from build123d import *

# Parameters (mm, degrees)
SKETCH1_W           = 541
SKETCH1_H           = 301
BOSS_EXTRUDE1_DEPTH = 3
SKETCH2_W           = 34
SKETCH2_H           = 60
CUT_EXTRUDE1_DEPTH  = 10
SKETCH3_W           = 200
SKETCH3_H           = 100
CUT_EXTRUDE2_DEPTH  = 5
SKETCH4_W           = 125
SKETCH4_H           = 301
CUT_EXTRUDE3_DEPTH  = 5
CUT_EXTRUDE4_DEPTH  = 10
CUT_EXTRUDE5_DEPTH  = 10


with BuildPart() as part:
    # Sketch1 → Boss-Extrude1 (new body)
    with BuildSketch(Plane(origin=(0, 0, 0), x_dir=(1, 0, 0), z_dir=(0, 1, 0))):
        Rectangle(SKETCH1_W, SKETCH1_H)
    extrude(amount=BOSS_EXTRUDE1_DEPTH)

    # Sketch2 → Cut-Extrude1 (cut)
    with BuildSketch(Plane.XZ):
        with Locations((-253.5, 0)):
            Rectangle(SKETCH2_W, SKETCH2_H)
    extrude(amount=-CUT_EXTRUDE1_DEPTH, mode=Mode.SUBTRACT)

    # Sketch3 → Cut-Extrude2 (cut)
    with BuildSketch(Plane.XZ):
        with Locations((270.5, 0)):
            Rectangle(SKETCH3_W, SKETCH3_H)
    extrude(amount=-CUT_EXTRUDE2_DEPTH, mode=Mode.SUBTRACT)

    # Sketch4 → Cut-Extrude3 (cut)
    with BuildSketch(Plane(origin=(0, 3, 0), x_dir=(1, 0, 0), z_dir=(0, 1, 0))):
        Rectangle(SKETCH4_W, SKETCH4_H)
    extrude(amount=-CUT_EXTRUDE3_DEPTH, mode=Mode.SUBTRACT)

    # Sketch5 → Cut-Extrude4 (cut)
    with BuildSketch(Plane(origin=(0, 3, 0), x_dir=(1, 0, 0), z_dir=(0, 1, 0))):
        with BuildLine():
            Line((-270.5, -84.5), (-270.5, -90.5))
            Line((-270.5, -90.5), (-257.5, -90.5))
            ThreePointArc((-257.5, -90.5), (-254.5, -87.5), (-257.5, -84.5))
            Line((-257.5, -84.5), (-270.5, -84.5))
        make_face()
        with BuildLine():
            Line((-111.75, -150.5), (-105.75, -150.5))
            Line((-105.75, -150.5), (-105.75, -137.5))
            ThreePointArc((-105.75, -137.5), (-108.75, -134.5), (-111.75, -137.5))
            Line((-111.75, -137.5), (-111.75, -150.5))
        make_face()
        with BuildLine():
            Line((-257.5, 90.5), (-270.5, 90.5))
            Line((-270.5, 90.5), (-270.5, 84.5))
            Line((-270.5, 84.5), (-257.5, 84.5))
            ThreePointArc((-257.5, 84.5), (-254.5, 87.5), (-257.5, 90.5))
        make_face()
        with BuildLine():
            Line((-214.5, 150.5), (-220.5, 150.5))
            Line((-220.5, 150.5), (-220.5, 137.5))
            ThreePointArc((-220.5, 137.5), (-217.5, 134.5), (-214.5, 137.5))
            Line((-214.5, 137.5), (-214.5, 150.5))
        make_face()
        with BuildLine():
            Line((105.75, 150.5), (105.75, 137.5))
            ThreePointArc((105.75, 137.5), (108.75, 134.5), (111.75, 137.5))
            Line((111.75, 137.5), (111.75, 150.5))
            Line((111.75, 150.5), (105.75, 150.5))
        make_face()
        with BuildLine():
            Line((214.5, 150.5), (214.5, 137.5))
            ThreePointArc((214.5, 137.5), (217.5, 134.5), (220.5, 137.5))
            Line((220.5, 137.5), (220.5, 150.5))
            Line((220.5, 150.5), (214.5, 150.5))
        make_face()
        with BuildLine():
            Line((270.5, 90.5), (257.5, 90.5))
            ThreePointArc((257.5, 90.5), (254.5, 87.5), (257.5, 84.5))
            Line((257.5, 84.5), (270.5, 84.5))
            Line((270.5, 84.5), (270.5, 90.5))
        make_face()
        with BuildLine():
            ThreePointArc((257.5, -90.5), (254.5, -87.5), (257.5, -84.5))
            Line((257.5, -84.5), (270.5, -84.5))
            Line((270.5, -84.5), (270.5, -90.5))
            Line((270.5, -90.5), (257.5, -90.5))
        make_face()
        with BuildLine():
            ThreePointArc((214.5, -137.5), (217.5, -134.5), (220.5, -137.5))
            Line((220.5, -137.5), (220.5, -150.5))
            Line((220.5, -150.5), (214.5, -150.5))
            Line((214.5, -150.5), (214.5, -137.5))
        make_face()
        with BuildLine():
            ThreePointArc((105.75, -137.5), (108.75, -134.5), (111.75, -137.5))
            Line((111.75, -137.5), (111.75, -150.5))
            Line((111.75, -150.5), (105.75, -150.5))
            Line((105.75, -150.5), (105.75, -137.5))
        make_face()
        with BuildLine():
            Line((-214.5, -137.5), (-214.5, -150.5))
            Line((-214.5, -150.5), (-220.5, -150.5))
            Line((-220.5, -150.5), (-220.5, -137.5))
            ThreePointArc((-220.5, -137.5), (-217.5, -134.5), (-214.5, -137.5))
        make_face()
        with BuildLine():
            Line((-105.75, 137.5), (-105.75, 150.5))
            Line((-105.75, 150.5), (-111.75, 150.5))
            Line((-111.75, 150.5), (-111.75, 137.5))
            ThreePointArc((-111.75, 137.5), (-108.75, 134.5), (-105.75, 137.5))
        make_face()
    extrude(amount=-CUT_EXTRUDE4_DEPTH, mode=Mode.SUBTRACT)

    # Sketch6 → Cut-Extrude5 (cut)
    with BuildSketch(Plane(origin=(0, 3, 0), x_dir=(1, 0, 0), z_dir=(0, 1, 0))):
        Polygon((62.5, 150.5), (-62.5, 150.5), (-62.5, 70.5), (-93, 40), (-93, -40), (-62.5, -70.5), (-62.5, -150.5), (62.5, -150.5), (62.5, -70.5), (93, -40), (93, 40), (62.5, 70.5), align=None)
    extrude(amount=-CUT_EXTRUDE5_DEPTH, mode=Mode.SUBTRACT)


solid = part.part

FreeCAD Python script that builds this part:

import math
import FreeCAD as App
import Part
import Sketcher

V = App.Vector
Q = App.Units.Quantity

doc = App.newDocument("Part")
body = doc.addObject("PartDesign::Body", "Body")
body.AllowCompound = True

sketch1 = body.newObject("Sketcher::SketchObject", "Sketch")
sketch1.AttachmentSupport = (doc.getObject("XZ_Plane"), [""])
sketch1.MapMode = "FlatFace"
sketch1.addGeometry([
    Part.LineSegment(V(-270, -150, 0), V(-270, 150, 0)),
    Part.LineSegment(V(-270, 150, 0), V(270, 150, 0)),
    Part.LineSegment(V(270, 150, 0), V(270, -150, 0)),
    Part.LineSegment(V(270, -150, 0), V(-270, -150, 0)),
], False)
sketch1.addConstraint([
    Sketcher.Constraint("Coincident", 0, 2, 1, 1),
    Sketcher.Constraint("Coincident", 1, 2, 2, 1),
    Sketcher.Constraint("Coincident", 2, 2, 3, 1),
    Sketcher.Constraint("Coincident", 3, 2, 0, 1),
    Sketcher.Constraint("Vertical", 0),
    Sketcher.Constraint("Horizontal", 1),
    Sketcher.Constraint("Vertical", 2),
    Sketcher.Constraint("Horizontal", 3),
    Sketcher.Constraint("Symmetric", 0, 2, 2, 2, -1, 1),
    Sketcher.Constraint("DistanceX", 1, 1, 1, 2, Q("541 mm")),
    Sketcher.Constraint("DistanceY", 0, 1, 0, 2, Q("301 mm")),
])
pad1 = body.newObject("PartDesign::Pad", "Pad")
pad1.Profile = sketch1
pad1.Length = 3
pad1.Reversed = True

sketch2 = body.newObject("Sketcher::SketchObject", "Sketch001")
sketch2.AttachmentSupport = (doc.getObject("XZ_Plane"), [""])
sketch2.MapMode = "FlatFace"
sketch2.addGeometry([
    Part.LineSegment(V(-270, 30, 0), V(-270, -30, 0)),
    Part.LineSegment(V(-270, -30, 0), V(-236, -30, 0)),
    Part.LineSegment(V(-236, -30, 0), V(-236, 30, 0)),
    Part.LineSegment(V(-236, 30, 0), V(-270, 30, 0)),
], False)
sketch2.addConstraint([
    Sketcher.Constraint("Coincident", 0, 2, 1, 1),
    Sketcher.Constraint("Coincident", 1, 2, 2, 1),
    Sketcher.Constraint("Coincident", 2, 2, 3, 1),
    Sketcher.Constraint("Coincident", 3, 2, 0, 1),
    Sketcher.Constraint("Vertical", 0),
    Sketcher.Constraint("Horizontal", 1),
    Sketcher.Constraint("Vertical", 2),
    Sketcher.Constraint("Horizontal", 3),
    Sketcher.Constraint("DistanceX", 1, 1, 1, 2, Q("34 mm")),
    Sketcher.Constraint("DistanceY", 0, 2, 0, 1, Q("60 mm")),
    Sketcher.Constraint("DistanceY", 0, 2, -1, 1, Q("30 mm")),
    Sketcher.Constraint("DistanceX", 0, 2, -1, 1, Q("270.5 mm")),
])
pocket1 = body.newObject("PartDesign::Pocket", "Pocket")
pocket1.Profile = sketch2
pocket1.Length = 10

sketch3 = body.newObject("Sketcher::SketchObject", "Sketch002")
sketch3.AttachmentSupport = (doc.getObject("XZ_Plane"), [""])
sketch3.MapMode = "FlatFace"
sketch3.addGeometry([
    Part.LineSegment(V(170, 50, 0), V(170, -50, 0)),
    Part.LineSegment(V(170, -50, 0), V(370, -50, 0)),
    Part.LineSegment(V(370, -50, 0), V(370, 50, 0)),
    Part.LineSegment(V(370, 50, 0), V(170, 50, 0)),
], False)
sketch3.addConstraint([
    Sketcher.Constraint("Coincident", 0, 2, 1, 1),
    Sketcher.Constraint("Coincident", 1, 2, 2, 1),
    Sketcher.Constraint("Coincident", 2, 2, 3, 1),
    Sketcher.Constraint("Coincident", 3, 2, 0, 1),
    Sketcher.Constraint("Vertical", 0),
    Sketcher.Constraint("Horizontal", 1),
    Sketcher.Constraint("Vertical", 2),
    Sketcher.Constraint("Horizontal", 3),
    Sketcher.Constraint("DistanceX", 1, 1, 1, 2, Q("200 mm")),
    Sketcher.Constraint("DistanceY", 0, 2, 0, 1, Q("100 mm")),
    Sketcher.Constraint("DistanceY", 0, 2, -1, 1, Q("50 mm")),
    Sketcher.Constraint("DistanceX", -1, 1, 0, 2, Q("170.5 mm")),
])
pocket2 = body.newObject("PartDesign::Pocket", "Pocket001")
pocket2.Profile = sketch3
pocket2.Length = 5

sketch4 = body.newObject("Sketcher::SketchObject", "Sketch003")
sketch4.AttachmentSupport = (doc.getObject("XZ_Plane"), [""])
sketch4.MapMode = "FlatFace"
sketch4.AttachmentOffset = App.Placement(V(0, 0, -3), App.Rotation())
sketch4.addGeometry([
    Part.LineSegment(V(-62, -150, 0), V(-62, 150, 0)),
    Part.LineSegment(V(-62, 150, 0), V(62, 150, 0)),
    Part.LineSegment(V(62, 150, 0), V(62, -150, 0)),
    Part.LineSegment(V(62, -150, 0), V(-62, -150, 0)),
], False)
sketch4.addConstraint([
    Sketcher.Constraint("Coincident", 0, 2, 1, 1),
    Sketcher.Constraint("Coincident", 1, 2, 2, 1),
    Sketcher.Constraint("Coincident", 2, 2, 3, 1),
    Sketcher.Constraint("Coincident", 3, 2, 0, 1),
    Sketcher.Constraint("Vertical", 0),
    Sketcher.Constraint("Horizontal", 1),
    Sketcher.Constraint("Vertical", 2),
    Sketcher.Constraint("Horizontal", 3),
    Sketcher.Constraint("Symmetric", 0, 2, 2, 2, -1, 1),
    Sketcher.Constraint("DistanceX", 1, 1, 1, 2, Q("125 mm")),
    Sketcher.Constraint("DistanceY", 0, 1, 0, 2, Q("301 mm")),
])
pocket3 = body.newObject("PartDesign::Pocket", "Pocket002")
pocket3.Profile = sketch4
pocket3.Length = 5
pocket3.Reversed = True

sketch5 = body.newObject("Sketcher::SketchObject", "Sketch004")
sketch5.AttachmentSupport = (doc.getObject("XZ_Plane"), [""])
sketch5.MapMode = "FlatFace"
sketch5.AttachmentOffset = App.Placement(V(0, 0, -3), App.Rotation())
sketch5.addGeometry([
    Part.LineSegment(V(-270.5, 84.5, 0), V(-270.5, 90.5, 0)),
    Part.LineSegment(V(-270.5, 90.5, 0), V(-257.5, 90.5, 0)),
    Part.ArcOfCircle(Part.Circle(V(-257.5, 87.5, 0), V(0, 0, 1), 3), math.radians(-90), math.radians(90)),
    Part.LineSegment(V(-257.5, 84.5, 0), V(-270.5, 84.5, 0)),
    Part.LineSegment(V(-111.8, 150.5, 0), V(-105.8, 150.5, 0)),
    Part.LineSegment(V(-105.8, 150.5, 0), V(-105.8, 137.5, 0)),
    Part.ArcOfCircle(Part.Circle(V(-108.8, 137.5, 0), V(0, 0, 1), 3), math.radians(180), math.radians(360)),
    Part.LineSegment(V(-111.8, 137.5, 0), V(-111.8, 150.5, 0)),
    Part.LineSegment(V(-257.5, -90.5, 0), V(-270.5, -90.5, 0)),
    Part.LineSegment(V(-270.5, -90.5, 0), V(-270.5, -84.5, 0)),
    Part.LineSegment(V(-270.5, -84.5, 0), V(-257.5, -84.5, 0)),
    Part.ArcOfCircle(Part.Circle(V(-257.5, -87.5, 0), V(0, 0, 1), 3), math.radians(-90), math.radians(90)),
    Part.LineSegment(V(-214.5, -150.5, 0), V(-220.5, -150.5, 0)),
    Part.LineSegment(V(-220.5, -150.5, 0), V(-220.5, -137.5, 0)),
    Part.ArcOfCircle(Part.Circle(V(-217.5, -137.5, 0), V(0, 0, 1), 3), math.radians(0), math.radians(180)),
    Part.LineSegment(V(-214.5, -137.5, 0), V(-214.5, -150.5, 0)),
    Part.LineSegment(V(105.8, -150.5, 0), V(105.8, -137.5, 0)),
    Part.ArcOfCircle(Part.Circle(V(108.8, -137.5, 0), V(0, 0, 1), 3), math.radians(0), math.radians(180)),
    Part.LineSegment(V(111.8, -137.5, 0), V(111.8, -150.5, 0)),
    Part.LineSegment(V(111.8, -150.5, 0), V(105.8, -150.5, 0)),
    Part.LineSegment(V(214.5, -150.5, 0), V(214.5, -137.5, 0)),
    Part.ArcOfCircle(Part.Circle(V(217.5, -137.5, 0), V(0, 0, 1), 3), math.radians(0), math.radians(180)),
    Part.LineSegment(V(220.5, -137.5, 0), V(220.5, -150.5, 0)),
    Part.LineSegment(V(220.5, -150.5, 0), V(214.5, -150.5, 0)),
    Part.LineSegment(V(270.5, -90.5, 0), V(257.5, -90.5, 0)),
    Part.ArcOfCircle(Part.Circle(V(257.5, -87.5, 0), V(0, 0, 1), 3), math.radians(90), math.radians(270)),
    Part.LineSegment(V(257.5, -84.5, 0), V(270.5, -84.5, 0)),
    Part.LineSegment(V(270.5, -84.5, 0), V(270.5, -90.5, 0)),
    Part.ArcOfCircle(Part.Circle(V(257.5, 87.5, 0), V(0, 0, 1), 3), math.radians(90), math.radians(270)),
    Part.LineSegment(V(257.5, 90.5, 0), V(270.5, 90.5, 0)),
    Part.LineSegment(V(270.5, 90.5, 0), V(270.5, 84.5, 0)),
    Part.LineSegment(V(270.5, 84.5, 0), V(257.5, 84.5, 0)),
    Part.ArcOfCircle(Part.Circle(V(217.5, 137.5, 0), V(0, 0, 1), 3), math.radians(180), math.radians(360)),
    Part.LineSegment(V(214.5, 137.5, 0), V(214.5, 150.5, 0)),
    Part.LineSegment(V(214.5, 150.5, 0), V(220.5, 150.5, 0)),
    Part.LineSegment(V(220.5, 150.5, 0), V(220.5, 137.5, 0)),
    Part.ArcOfCircle(Part.Circle(V(108.8, 137.5, 0), V(0, 0, 1), 3), math.radians(180), math.radians(360)),
    Part.LineSegment(V(105.8, 137.5, 0), V(105.8, 150.5, 0)),
    Part.LineSegment(V(105.8, 150.5, 0), V(111.8, 150.5, 0)),
    Part.LineSegment(V(111.8, 150.5, 0), V(111.8, 137.5, 0)),
    Part.LineSegment(V(-214.5, 150.5, 0), V(-214.5, 137.5, 0)),
    Part.ArcOfCircle(Part.Circle(V(-217.5, 137.5, 0), V(0, 0, 1), 3), math.radians(180), math.radians(360)),
    Part.LineSegment(V(-220.5, 137.5, 0), V(-220.5, 150.5, 0)),
    Part.LineSegment(V(-220.5, 150.5, 0), V(-214.5, 150.5, 0)),
    Part.LineSegment(V(-105.8, -137.5, 0), V(-105.8, -150.5, 0)),
    Part.LineSegment(V(-105.8, -150.5, 0), V(-111.8, -150.5, 0)),
    Part.LineSegment(V(-111.8, -150.5, 0), V(-111.8, -137.5, 0)),
    Part.ArcOfCircle(Part.Circle(V(-108.8, -137.5, 0), V(0, 0, 1), 3), math.radians(0), math.radians(180)),
], False)
sketch5.addConstraint([
    Sketcher.Constraint("Coincident", 0, 2, 1, 1),
    Sketcher.Constraint("Tangent", 1, 2, 2, 2),
    Sketcher.Constraint("Tangent", 2, 1, 3, 1),
    Sketcher.Constraint("Coincident", 3, 2, 0, 1),
    Sketcher.Constraint("Coincident", 4, 2, 5, 1),
    Sketcher.Constraint("Tangent", 5, 2, 6, 2),
    Sketcher.Constraint("Tangent", 6, 1, 7, 1),
    Sketcher.Constraint("Coincident", 7, 2, 4, 1),
    Sketcher.Constraint("Coincident", 8, 2, 9, 1),
    Sketcher.Constraint("Coincident", 9, 2, 10, 1),
    Sketcher.Constraint("Tangent", 10, 2, 11, 2),
    Sketcher.Constraint("Tangent", 11, 1, 8, 1),
    Sketcher.Constraint("Coincident", 12, 2, 13, 1),
    Sketcher.Constraint("Tangent", 13, 2, 14, 2),
    Sketcher.Constraint("Tangent", 14, 1, 15, 1),
    Sketcher.Constraint("Coincident", 15, 2, 12, 1),
    Sketcher.Constraint("Tangent", 16, 2, 17, 2),
    Sketcher.Constraint("Tangent", 17, 1, 18, 1),
    Sketcher.Constraint("Coincident", 18, 2, 19, 1),
    Sketcher.Constraint("Coincident", 19, 2, 16, 1),
    Sketcher.Constraint("Tangent", 20, 2, 21, 2),
    Sketcher.Constraint("Tangent", 21, 1, 22, 1),
    Sketcher.Constraint("Coincident", 22, 2, 23, 1),
    Sketcher.Constraint("Coincident", 23, 2, 20, 1),
    Sketcher.Constraint("Tangent", 24, 2, 25, 2),
    Sketcher.Constraint("Tangent", 25, 1, 26, 1),
    Sketcher.Constraint("Coincident", 26, 2, 27, 1),
    Sketcher.Constraint("Coincident", 27, 2, 24, 1),
    Sketcher.Constraint("Tangent", 28, 1, 29, 1),
    Sketcher.Constraint("Coincident", 29, 2, 30, 1),
    Sketcher.Constraint("Coincident", 30, 2, 31, 1),
    Sketcher.Constraint("Tangent", 31, 2, 28, 2),
    Sketcher.Constraint("Tangent", 32, 1, 33, 1),
    Sketcher.Constraint("Coincident", 33, 2, 34, 1),
    Sketcher.Constraint("Coincident", 34, 2, 35, 1),
    Sketcher.Constraint("Tangent", 35, 2, 32, 2),
    Sketcher.Constraint("Tangent", 36, 1, 37, 1),
    Sketcher.Constraint("Coincident", 37, 2, 38, 1),
    Sketcher.Constraint("Coincident", 38, 2, 39, 1),
    Sketcher.Constraint("Tangent", 39, 2, 36, 2),
    Sketcher.Constraint("Tangent", 40, 2, 41, 2),
    Sketcher.Constraint("Tangent", 41, 1, 42, 1),
    Sketcher.Constraint("Coincident", 42, 2, 43, 1),
    Sketcher.Constraint("Coincident", 43, 2, 40, 1),
    Sketcher.Constraint("Coincident", 44, 2, 45, 1),
    Sketcher.Constraint("Coincident", 45, 2, 46, 1),
    Sketcher.Constraint("Tangent", 46, 2, 47, 2),
    Sketcher.Constraint("Tangent", 47, 1, 44, 1),
    Sketcher.Constraint("Vertical", 0),
    Sketcher.Constraint("Horizontal", 1),
    Sketcher.Constraint("Horizontal", 3),
    Sketcher.Constraint("Horizontal", 4),
    Sketcher.Constraint("Vertical", 5),
    Sketcher.Constraint("Vertical", 7),
    Sketcher.Constraint("Horizontal", 8),
    Sketcher.Constraint("Vertical", 9),
    Sketcher.Constraint("Horizontal", 10),
    Sketcher.Constraint("Horizontal", 12),
    Sketcher.Constraint("Vertical", 13),
    Sketcher.Constraint("Vertical", 15),
    Sketcher.Constraint("Vertical", 16),
    Sketcher.Constraint("Vertical", 18),
    Sketcher.Constraint("Horizontal", 19),
    Sketcher.Constraint("Vertical", 20),
    Sketcher.Constraint("Vertical", 22),
    Sketcher.Constraint("Horizontal", 23),
    Sketcher.Constraint("Horizontal", 24),
    Sketcher.Constraint("Horizontal", 26),
    Sketcher.Constraint("Vertical", 27),
    Sketcher.Constraint("Horizontal", 29),
    Sketcher.Constraint("Vertical", 30),
    Sketcher.Constraint("Horizontal", 31),
    Sketcher.Constraint("Vertical", 33),
    Sketcher.Constraint("Horizontal", 34),
    Sketcher.Constraint("Vertical", 35),
    Sketcher.Constraint("Vertical", 37),
    Sketcher.Constraint("Horizontal", 38),
    Sketcher.Constraint("Vertical", 39),
    Sketcher.Constraint("Vertical", 40),
    Sketcher.Constraint("Vertical", 42),
    Sketcher.Constraint("Horizontal", 43),
    Sketcher.Constraint("Vertical", 44),
    Sketcher.Constraint("Horizontal", 45),
    Sketcher.Constraint("Vertical", 46),
    Sketcher.Constraint("Equal", 2, 6),
    Sketcher.Constraint("Equal", 6, 11),
    Sketcher.Constraint("Equal", 11, 14),
    Sketcher.Constraint("Equal", 14, 17),
    Sketcher.Constraint("Equal", 17, 21),
    Sketcher.Constraint("Equal", 21, 25),
    Sketcher.Constraint("Equal", 25, 28),
    Sketcher.Constraint("Equal", 28, 32),
    Sketcher.Constraint("Equal", 32, 36),
    Sketcher.Constraint("Equal", 36, 41),
    Sketcher.Constraint("Equal", 41, 47),
    Sketcher.Constraint("Symmetric", 6, 3, 17, 3, -1, 1),
    Sketcher.Constraint("Symmetric", 2, 3, 25, 3, -1, 1),
    Sketcher.Constraint("Symmetric", 11, 3, 28, 3, -1, 1),
    Sketcher.Constraint("Symmetric", 14, 3, 32, 3, -1, 1),
    Sketcher.Constraint("Symmetric", 21, 3, 41, 3, -1, 1),
    Sketcher.Constraint("Symmetric", 36, 3, 47, 3, -1, 1),
    Sketcher.Constraint("Symmetric", 14, 3, 21, 3, -2),
    Sketcher.Constraint("Symmetric", 11, 3, 25, 3, -2),
    Sketcher.Constraint("Symmetric", 6, 3, 36, 3, -2),
    Sketcher.Constraint("Horizontal", 14, 3, 17, 3),
    Sketcher.Constraint("Horizontal", 15, 2, 18, 2),
    Sketcher.Constraint("Horizontal", 19, 2, 22, 2),
    Sketcher.Constraint("Horizontal", 7, 2, 33, 2),
    Sketcher.Constraint("Horizontal", 34, 2, 37, 2),
    Sketcher.Constraint("Horizontal", 38, 2, 42, 2),
    Sketcher.Constraint("Horizontal", 23, 2, 44, 2),
    Sketcher.Constraint("Vertical", 3, 2, 8, 2),
    Sketcher.Constraint("Vertical", 27, 2, 29, 2),
    Sketcher.Constraint("Equal", 10, 24),
    Sketcher.Constraint("Equal", 31, 5),
    Sketcher.Constraint("Equal", 7, 13),
    Sketcher.Constraint("Radius", 2, Q("3 mm")),
    Sketcher.Constraint("DistanceX", 1, 1, 1, 2, Q("13 mm")),
    Sketcher.Constraint("DistanceY", 2, 3, 6, 3, Q("50 mm")),
    Sketcher.Constraint("DistanceY", 11, 3, 2, 3, Q("175 mm")),
    Sketcher.Constraint("DistanceX", 11, 3, 14, 3, Q("40 mm")),
    Sketcher.Constraint("DistanceX", 14, 3, 21, 3, Q("435 mm")),
    Sketcher.Constraint("DistanceX", 6, 3, 17, 3, Q("217.5 mm")),
])
pocket4 = body.newObject("PartDesign::Pocket", "Pocket003")
pocket4.Profile = sketch5
pocket4.Length = 10
pocket4.Reversed = True

sketch6 = body.newObject("Sketcher::SketchObject", "Sketch005")
sketch6.AttachmentSupport = (doc.getObject("XZ_Plane"), [""])
sketch6.MapMode = "FlatFace"
sketch6.AttachmentOffset = App.Placement(V(0, 0, -3), App.Rotation())
sketch6.addGeometry([
    Part.LineSegment(V(62, -150, 0), V(-62, -150, 0)),
    Part.LineSegment(V(-62, -150, 0), V(-62, -70, 0)),
    Part.LineSegment(V(-62, -70, 0), V(-93, -40, 0)),
    Part.LineSegment(V(-93, -40, 0), V(-93, 40, 0)),
    Part.LineSegment(V(-93, 40, 0), V(-62, 70, 0)),
    Part.LineSegment(V(-62, 70, 0), V(-62, 150, 0)),
    Part.LineSegment(V(-62, 150, 0), V(62, 150, 0)),
    Part.LineSegment(V(62, 150, 0), V(62, 70, 0)),
    Part.LineSegment(V(62, 70, 0), V(93, 40, 0)),
    Part.LineSegment(V(93, 40, 0), V(93, -40, 0)),
    Part.LineSegment(V(93, -40, 0), V(62, -70, 0)),
    Part.LineSegment(V(62, -70, 0), V(62, -150, 0)),
], False)
sketch6.addConstraint([
    Sketcher.Constraint("Coincident", 0, 2, 1, 1),
    Sketcher.Constraint("Coincident", 1, 2, 2, 1),
    Sketcher.Constraint("Coincident", 2, 2, 3, 1),
    Sketcher.Constraint("Coincident", 3, 2, 4, 1),
    Sketcher.Constraint("Coincident", 4, 2, 5, 1),
    Sketcher.Constraint("Coincident", 5, 2, 6, 1),
    Sketcher.Constraint("Coincident", 6, 2, 7, 1),
    Sketcher.Constraint("Coincident", 7, 2, 8, 1),
    Sketcher.Constraint("Coincident", 8, 2, 9, 1),
    Sketcher.Constraint("Coincident", 9, 2, 10, 1),
    Sketcher.Constraint("Coincident", 10, 2, 11, 1),
    Sketcher.Constraint("Coincident", 11, 2, 0, 1),
    Sketcher.Constraint("Horizontal", 0),
    Sketcher.Constraint("Vertical", 1),
    Sketcher.Constraint("Vertical", 3),
    Sketcher.Constraint("Vertical", 5),
    Sketcher.Constraint("Horizontal", 6),
    Sketcher.Constraint("Vertical", 7),
    Sketcher.Constraint("Vertical", 9),
    Sketcher.Constraint("Vertical", 11),
    Sketcher.Constraint("Symmetric", 0, 2, 6, 2, -1, 1),
    Sketcher.Constraint("Symmetric", 2, 2, 8, 2, -1, 1),
    Sketcher.Constraint("Symmetric", 4, 2, 10, 2, -1, 1),
    Sketcher.Constraint("Symmetric", 4, 2, 7, 2, -2),
    Sketcher.Constraint("Perpendicular", 2, 4),
    Sketcher.Constraint("Perpendicular", 4, 8),
    Sketcher.Constraint("Perpendicular", 8, 10),
    Sketcher.Constraint("Horizontal", 3, 2, 8, 2),
    Sketcher.Constraint("Equal", 1, 3),
    Sketcher.Constraint("DistanceX", 0, 2, 0, 1, Q("125 mm")),
    Sketcher.Constraint("DistanceY", 1, 1, 1, 2, Q("80 mm")),
    Sketcher.Constraint("DistanceX", 2, 2, -1, 1, Q("93 mm")),
])
pocket5 = body.newObject("PartDesign::Pocket", "Pocket004")
pocket5.Profile = sketch6
pocket5.Length = 10
pocket5.Reversed = True

doc.recompute()
